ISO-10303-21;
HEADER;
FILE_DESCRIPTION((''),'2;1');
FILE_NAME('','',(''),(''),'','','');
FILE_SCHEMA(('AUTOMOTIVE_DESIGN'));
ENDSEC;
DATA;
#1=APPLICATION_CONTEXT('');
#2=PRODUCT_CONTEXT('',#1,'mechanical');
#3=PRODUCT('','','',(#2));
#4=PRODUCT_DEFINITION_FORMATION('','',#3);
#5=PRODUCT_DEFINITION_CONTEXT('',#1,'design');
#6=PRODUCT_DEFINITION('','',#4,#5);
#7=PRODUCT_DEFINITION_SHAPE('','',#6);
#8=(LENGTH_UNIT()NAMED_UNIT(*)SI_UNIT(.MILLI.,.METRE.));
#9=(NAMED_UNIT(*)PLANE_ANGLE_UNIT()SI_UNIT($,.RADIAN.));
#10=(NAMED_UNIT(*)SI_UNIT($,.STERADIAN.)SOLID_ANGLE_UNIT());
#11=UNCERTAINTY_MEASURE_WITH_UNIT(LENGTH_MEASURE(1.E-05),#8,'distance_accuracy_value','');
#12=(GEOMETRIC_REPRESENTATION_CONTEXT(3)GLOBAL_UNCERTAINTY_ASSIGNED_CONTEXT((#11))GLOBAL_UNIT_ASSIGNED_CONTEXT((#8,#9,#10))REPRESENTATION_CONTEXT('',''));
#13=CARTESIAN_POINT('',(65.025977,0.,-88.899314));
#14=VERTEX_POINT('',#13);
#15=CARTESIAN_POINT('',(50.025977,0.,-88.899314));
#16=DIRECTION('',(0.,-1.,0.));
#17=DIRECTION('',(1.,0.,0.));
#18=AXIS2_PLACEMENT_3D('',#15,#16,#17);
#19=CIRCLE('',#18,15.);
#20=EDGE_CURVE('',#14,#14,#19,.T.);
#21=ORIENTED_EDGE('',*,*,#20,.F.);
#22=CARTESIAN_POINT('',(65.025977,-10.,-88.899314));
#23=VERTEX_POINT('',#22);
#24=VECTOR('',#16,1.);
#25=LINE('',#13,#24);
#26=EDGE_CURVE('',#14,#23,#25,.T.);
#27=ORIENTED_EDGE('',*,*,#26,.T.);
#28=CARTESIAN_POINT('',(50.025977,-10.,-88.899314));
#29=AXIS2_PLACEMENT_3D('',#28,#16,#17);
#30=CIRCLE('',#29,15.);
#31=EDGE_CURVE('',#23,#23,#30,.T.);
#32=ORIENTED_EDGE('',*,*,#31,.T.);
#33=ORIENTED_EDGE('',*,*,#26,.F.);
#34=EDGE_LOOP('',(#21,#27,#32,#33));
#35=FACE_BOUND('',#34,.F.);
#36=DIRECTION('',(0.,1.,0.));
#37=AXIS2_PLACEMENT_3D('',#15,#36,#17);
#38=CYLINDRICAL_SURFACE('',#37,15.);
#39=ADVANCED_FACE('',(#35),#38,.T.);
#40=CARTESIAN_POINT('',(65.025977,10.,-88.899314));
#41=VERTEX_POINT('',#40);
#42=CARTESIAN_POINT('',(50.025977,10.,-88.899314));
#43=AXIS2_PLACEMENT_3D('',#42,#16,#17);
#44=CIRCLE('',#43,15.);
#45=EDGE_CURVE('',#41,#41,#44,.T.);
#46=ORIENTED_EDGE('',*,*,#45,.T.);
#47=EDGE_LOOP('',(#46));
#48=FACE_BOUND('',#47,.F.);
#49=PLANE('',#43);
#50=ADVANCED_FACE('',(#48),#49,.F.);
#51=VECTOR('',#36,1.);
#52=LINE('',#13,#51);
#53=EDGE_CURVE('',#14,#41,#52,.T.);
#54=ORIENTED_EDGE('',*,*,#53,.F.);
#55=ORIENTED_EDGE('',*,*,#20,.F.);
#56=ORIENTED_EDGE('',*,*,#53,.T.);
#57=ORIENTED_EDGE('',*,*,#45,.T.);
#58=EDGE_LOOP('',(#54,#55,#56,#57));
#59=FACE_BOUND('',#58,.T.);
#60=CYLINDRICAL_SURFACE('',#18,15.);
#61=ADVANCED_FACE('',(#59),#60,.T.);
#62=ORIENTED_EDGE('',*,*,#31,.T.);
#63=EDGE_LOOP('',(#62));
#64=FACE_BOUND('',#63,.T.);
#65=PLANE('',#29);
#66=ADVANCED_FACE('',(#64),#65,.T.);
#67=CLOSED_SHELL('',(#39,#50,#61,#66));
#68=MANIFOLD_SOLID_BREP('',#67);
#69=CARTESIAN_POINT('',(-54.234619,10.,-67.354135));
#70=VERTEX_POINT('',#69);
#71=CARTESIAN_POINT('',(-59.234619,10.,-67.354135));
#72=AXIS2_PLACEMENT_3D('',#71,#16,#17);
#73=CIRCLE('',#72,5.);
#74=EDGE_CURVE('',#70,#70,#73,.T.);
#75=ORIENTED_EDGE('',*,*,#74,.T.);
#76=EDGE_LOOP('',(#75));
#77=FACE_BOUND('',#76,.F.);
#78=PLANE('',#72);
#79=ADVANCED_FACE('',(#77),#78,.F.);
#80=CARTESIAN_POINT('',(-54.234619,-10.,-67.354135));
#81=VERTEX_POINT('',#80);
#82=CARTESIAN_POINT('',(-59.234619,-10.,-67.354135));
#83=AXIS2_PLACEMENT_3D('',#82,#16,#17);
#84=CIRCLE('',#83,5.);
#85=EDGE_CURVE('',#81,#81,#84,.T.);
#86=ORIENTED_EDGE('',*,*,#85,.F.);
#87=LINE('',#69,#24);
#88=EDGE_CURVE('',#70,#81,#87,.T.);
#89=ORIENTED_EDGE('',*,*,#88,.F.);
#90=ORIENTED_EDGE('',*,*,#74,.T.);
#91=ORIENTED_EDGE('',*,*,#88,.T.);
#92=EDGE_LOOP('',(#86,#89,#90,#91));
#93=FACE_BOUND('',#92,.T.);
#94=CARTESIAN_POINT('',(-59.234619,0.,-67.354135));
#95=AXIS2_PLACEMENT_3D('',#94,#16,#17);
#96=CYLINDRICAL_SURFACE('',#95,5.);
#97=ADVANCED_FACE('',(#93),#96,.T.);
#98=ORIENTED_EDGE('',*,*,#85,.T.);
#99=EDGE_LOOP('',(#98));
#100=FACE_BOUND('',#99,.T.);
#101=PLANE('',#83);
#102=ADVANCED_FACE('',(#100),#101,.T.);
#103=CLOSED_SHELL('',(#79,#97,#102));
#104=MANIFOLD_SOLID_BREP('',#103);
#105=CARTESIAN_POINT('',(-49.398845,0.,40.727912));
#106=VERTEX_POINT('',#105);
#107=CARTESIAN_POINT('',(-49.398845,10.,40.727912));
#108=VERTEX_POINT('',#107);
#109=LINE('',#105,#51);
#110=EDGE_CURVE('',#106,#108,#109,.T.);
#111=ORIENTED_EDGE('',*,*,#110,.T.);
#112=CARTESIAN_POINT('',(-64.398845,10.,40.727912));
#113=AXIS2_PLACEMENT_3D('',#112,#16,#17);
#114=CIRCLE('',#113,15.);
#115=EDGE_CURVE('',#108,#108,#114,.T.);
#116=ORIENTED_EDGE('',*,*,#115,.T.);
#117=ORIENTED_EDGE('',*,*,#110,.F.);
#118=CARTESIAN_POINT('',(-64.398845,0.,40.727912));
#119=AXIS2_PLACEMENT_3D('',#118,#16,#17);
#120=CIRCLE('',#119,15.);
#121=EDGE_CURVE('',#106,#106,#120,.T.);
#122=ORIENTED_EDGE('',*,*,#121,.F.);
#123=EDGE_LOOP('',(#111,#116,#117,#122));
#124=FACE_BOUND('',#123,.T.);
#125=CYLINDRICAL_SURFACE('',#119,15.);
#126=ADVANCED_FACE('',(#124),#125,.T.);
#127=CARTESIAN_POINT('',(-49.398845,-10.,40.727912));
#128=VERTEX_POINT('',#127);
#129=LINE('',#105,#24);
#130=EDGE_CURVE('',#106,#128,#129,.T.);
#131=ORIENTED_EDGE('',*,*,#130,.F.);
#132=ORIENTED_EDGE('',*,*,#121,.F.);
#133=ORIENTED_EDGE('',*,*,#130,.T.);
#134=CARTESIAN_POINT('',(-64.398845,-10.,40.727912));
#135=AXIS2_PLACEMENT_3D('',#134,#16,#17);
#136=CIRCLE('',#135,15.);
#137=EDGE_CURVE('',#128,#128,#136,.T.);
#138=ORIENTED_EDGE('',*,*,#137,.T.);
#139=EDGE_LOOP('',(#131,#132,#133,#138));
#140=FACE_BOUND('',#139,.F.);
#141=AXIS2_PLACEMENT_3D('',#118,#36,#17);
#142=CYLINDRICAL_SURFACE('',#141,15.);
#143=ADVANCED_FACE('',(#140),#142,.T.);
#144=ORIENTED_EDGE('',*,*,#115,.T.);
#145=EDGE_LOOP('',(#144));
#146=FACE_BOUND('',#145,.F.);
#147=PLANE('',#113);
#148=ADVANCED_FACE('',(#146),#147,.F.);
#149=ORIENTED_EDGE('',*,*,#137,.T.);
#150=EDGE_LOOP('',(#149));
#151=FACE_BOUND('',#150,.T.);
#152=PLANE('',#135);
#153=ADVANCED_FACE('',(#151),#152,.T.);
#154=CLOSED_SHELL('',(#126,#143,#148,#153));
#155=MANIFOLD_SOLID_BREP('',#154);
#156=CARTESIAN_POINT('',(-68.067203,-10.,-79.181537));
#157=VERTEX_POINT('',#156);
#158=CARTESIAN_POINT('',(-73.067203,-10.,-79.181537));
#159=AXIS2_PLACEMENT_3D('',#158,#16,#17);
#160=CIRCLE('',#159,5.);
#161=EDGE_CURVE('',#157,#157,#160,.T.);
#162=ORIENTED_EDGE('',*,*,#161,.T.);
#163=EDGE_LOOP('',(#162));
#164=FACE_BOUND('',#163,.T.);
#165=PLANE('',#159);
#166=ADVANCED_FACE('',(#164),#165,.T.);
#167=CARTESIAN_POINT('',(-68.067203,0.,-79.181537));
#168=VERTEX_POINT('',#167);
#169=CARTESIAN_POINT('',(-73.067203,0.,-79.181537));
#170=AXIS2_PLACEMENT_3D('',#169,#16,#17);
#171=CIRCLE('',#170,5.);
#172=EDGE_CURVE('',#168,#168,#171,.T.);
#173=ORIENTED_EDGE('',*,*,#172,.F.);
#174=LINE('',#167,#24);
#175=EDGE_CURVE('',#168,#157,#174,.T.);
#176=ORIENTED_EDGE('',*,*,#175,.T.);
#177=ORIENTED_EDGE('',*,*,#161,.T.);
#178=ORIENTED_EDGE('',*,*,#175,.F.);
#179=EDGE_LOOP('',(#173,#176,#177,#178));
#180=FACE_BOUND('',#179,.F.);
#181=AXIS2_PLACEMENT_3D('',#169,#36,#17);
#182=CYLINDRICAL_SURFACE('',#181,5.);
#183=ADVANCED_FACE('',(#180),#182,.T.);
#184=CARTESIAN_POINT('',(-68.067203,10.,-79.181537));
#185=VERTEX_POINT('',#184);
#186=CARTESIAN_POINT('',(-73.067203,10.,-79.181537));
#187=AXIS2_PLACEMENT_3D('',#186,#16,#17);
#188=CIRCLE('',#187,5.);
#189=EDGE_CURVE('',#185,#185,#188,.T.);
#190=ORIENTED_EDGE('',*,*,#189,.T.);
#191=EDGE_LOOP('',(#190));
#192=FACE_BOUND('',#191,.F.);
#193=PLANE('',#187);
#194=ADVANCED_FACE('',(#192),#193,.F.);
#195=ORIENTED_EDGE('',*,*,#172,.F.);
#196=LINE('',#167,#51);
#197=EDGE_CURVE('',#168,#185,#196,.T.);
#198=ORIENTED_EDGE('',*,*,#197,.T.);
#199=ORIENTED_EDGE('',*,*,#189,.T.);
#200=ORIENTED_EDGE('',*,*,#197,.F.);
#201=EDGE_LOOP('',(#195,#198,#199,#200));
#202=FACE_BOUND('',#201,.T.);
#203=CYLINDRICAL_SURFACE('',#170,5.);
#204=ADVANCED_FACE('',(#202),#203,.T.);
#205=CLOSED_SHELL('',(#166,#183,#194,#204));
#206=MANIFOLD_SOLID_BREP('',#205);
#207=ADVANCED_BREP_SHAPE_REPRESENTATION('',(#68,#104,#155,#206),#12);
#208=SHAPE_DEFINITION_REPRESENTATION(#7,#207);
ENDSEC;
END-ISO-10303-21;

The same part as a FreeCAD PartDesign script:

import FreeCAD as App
import Part
import Sketcher
from FreeCAD import Vector

doc = App.newDocument("Part")
body = doc.addObject("PartDesign::Body", "Body")
body.AllowCompound = True

# Sketch on XZ plane
sketch1 = body.newObject("Sketcher::SketchObject", "Sketch")
sketch1.AttachmentSupport = (doc.getObject("XZ_Plane"), [""])
sketch1.MapMode = "FlatFace"
sketch1.addGeometry(Part.Circle(Vector(-64.398845, 40.727912, 0), Vector(0, 0, 1), 15), False)
sketch1.addGeometry(Part.Circle(Vector(50.025977, -88.899314, 0), Vector(0, 0, 1), 15), False)
sketch1.addGeometry(Part.Circle(Vector(-73.067203, -79.181537, 0), Vector(0, 0, 1), 5), False)
sketch1.addGeometry(Part.Circle(Vector(-59.234619, -67.354135, 0), Vector(0, 0, 1), 5), False)
sketch1.addConstraint(Sketcher.Constraint("Equal", 0, 1))
sketch1.addConstraint(Sketcher.Constraint("Equal", 2, 3))
sketch1.addConstraint(Sketcher.Constraint("Diameter", 0, 30.0))
sketch1.addConstraint(Sketcher.Constraint("Diameter", 2, 10.0))
sketch1.addConstraint(Sketcher.Constraint("DistanceX", 3, 3, -1, 1, 59.234619))
sketch1.addConstraint(Sketcher.Constraint("DistanceX", 0, 3, 1, 3, 114.424822))
sketch1.addConstraint(Sketcher.Constraint("DistanceX", 2, 3, 0, 3, 8.668358))
sketch1.addConstraint(Sketcher.Constraint("DistanceY", 2, 3, 0, 3, 119.909449))
sketch1.addConstraint(Sketcher.Constraint("DistanceY", 1, 3, 3, 3, 21.545179))
sketch1.addConstraint(Sketcher.Constraint("DistanceX", 0, 3, -1, 1, 64.398845))
sketch1.addConstraint(Sketcher.Constraint("DistanceY", -1, 1, 0, 3, 40.727912))
sketch1.addConstraint(Sketcher.Constraint("DistanceY", 1, 3, -1, 1, 88.899314))
pad1 = body.newObject("PartDesign::Pad", "Pad")
pad1.Profile = sketch1
pad1.Length = 20
pad1.Midplane = True

doc.recompute()
